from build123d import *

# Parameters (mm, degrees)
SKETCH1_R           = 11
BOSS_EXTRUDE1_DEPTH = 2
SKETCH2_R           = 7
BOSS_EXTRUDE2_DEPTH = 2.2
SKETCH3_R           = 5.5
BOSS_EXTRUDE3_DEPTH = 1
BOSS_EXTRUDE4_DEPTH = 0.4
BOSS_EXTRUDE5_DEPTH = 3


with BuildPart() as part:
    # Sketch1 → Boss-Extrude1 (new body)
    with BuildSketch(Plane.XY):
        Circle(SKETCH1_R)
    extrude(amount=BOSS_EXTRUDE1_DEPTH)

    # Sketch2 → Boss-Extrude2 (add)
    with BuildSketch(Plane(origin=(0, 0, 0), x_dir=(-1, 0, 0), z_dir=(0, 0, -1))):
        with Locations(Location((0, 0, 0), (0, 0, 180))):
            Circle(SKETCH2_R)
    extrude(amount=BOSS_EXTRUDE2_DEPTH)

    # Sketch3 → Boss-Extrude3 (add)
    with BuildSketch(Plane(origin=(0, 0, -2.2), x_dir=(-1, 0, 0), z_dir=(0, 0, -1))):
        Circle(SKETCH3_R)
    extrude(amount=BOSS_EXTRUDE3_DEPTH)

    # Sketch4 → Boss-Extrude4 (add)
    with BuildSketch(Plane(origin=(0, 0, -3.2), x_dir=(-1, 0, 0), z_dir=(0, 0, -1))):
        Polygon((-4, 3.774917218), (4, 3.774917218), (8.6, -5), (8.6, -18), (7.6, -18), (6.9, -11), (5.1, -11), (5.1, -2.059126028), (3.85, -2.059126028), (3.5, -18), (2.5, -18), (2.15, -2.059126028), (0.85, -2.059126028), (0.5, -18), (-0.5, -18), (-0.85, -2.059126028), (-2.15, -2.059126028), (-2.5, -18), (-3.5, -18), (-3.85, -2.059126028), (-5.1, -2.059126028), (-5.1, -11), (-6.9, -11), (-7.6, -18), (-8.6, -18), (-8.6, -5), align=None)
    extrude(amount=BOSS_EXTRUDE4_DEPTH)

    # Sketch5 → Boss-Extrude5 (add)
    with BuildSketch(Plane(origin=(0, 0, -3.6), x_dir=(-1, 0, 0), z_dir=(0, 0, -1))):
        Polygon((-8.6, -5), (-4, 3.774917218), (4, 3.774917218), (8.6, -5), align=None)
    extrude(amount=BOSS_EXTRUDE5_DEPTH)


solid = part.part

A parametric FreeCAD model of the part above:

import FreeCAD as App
import Part
import Sketcher
from FreeCAD import Vector

doc = App.newDocument("Part")
body = doc.addObject("PartDesign::Body", "Body")

sketch1 = doc.addObject("Sketcher::SketchObject", "Sketch")
body.addObject(sketch1)
sketch1.AttachmentSupport = (doc.XY_Plane, [""])
sketch1.MapMode = "FlatFace"
sketch1.addGeometry(Part.Circle(Vector(0, 0, 0), Vector(0, 0, 1), 11), False)
sketch1.addConstraint([
    Sketcher.Constraint("Coincident", 0, 3, -1, 1),
    Sketcher.Constraint("Diameter", 0, 22.0),
])
pad1 = doc.addObject("PartDesign::Pad", "Pad")
body.addObject(pad1)
pad1.Profile = sketch1
pad1.Length = 2

sketch2 = doc.addObject("Sketcher::SketchObject", "Sketch001")
body.addObject(sketch2)
sketch2.AttachmentSupport = (doc.XY_Plane, [""])
sketch2.MapMode = "FlatFace"
sketch2.addGeometry(Part.Circle(Vector(0, 0, 0), Vector(0, 0, 1), 7), False)
sketch2.addConstraint([
    Sketcher.Constraint("Coincident", 0, 3, -1, 1),
    Sketcher.Constraint("Diameter", 0, 14.0),
])
pad2 = doc.addObject("PartDesign::Pad", "Pad001")
body.addObject(pad2)
pad2.Profile = sketch2
pad2.Length = 2.2
pad2.Reversed = True

sketch3 = doc.addObject("Sketcher::SketchObject", "Sketch002")
body.addObject(sketch3)
sketch3.AttachmentSupport = (doc.XY_Plane, [""])
sketch3.MapMode = "FlatFace"
sketch3.AttachmentOffset = App.Placement(Vector(0, 0, -2.2), App.Rotation())
sketch3.addGeometry(Part.Circle(Vector(0, 0, 0), Vector(0, 0, 1), 5.5), False)
sketch3.addConstraint([
    Sketcher.Constraint("Coincident", 0, 3, -1, 1),
    Sketcher.Constraint("Diameter", 0, 11.0),
])
pad3 = doc.addObject("PartDesign::Pad", "Pad002")
body.addObject(pad3)
pad3.Profile = sketch3
pad3.Length = 1
pad3.Reversed = True

sketch4 = doc.addObject("Sketcher::SketchObject", "Sketch003")
body.addObject(sketch4)
sketch4.AttachmentSupport = (doc.XY_Plane, [""])
sketch4.MapMode = "FlatFace"
sketch4.AttachmentOffset = App.Placement(Vector(0, 0, -3.2), App.Rotation())
sketch4.addGeometry([
    Part.LineSegment(Vector(-4, 3.774917, 0), Vector(4, 3.774917, 0)),
    Part.LineSegment(Vector(4, 3.774917, 0), Vector(8.6, -5, 0)),
    Part.LineSegment(Vector(8.6, -5, 0), Vector(8.6, -18, 0)),
    Part.LineSegment(Vector(8.6, -18, 0), Vector(7.6, -18, 0)),
    Part.LineSegment(Vector(7.6, -18, 0), Vector(6.9, -11, 0)),
    Part.LineSegment(Vector(6.9, -11, 0), Vector(5.1, -11, 0)),
    Part.LineSegment(Vector(5.1, -11, 0), Vector(5.1, -2.059126, 0)),
    Part.LineSegment(Vector(5.1, -2.059126, 0), Vector(3.85, -2.059126, 0)),
    Part.LineSegment(Vector(3.85, -2.059126, 0), Vector(3.5, -18, 0)),
    Part.LineSegment(Vector(3.5, -18, 0), Vector(2.5, -18, 0)),
    Part.LineSegment(Vector(2.5, -18, 0), Vector(2.15, -2.059126, 0)),
    Part.LineSegment(Vector(2.15, -2.059126, 0), Vector(0.85, -2.059126, 0)),
    Part.LineSegment(Vector(0.85, -2.059126, 0), Vector(0.5, -18, 0)),
    Part.LineSegment(Vector(0.5, -18, 0), Vector(-0.5, -18, 0)),
    Part.LineSegment(Vector(-0.5, -18, 0), Vector(-0.85, -2.059126, 0)),
    Part.LineSegment(Vector(-0.85, -2.059126, 0), Vector(-2.15, -2.059126, 0)),
    Part.LineSegment(Vector(-2.15, -2.059126, 0), Vector(-2.5, -18, 0)),
    Part.LineSegment(Vector(-2.5, -18, 0), Vector(-3.5, -18, 0)),
    Part.LineSegment(Vector(-3.5, -18, 0), Vector(-3.85, -2.059126, 0)),
    Part.LineSegment(Vector(-3.85, -2.059126, 0), Vector(-5.1, -2.059126, 0)),
    Part.LineSegment(Vector(-5.1, -2.059126, 0), Vector(-5.1, -11, 0)),
    Part.LineSegment(Vector(-5.1, -11, 0), Vector(-6.9, -11, 0)),
    Part.LineSegment(Vector(-6.9, -11, 0), Vector(-7.6, -18, 0)),
    Part.LineSegment(Vector(-7.6, -18, 0), Vector(-8.6, -18, 0)),
    Part.LineSegment(Vector(-8.6, -18, 0), Vector(-8.6, -5, 0)),
    Part.LineSegment(Vector(-8.6, -5, 0), Vector(-4, 3.774917, 0)),
], False)
sketch4.addConstraint([
    Sketcher.Constraint("Coincident", 0, 2, 1, 1),
    Sketcher.Constraint("Coincident", 1, 2, 2, 1),
    Sketcher.Constraint("Coincident", 2, 2, 3, 1),
    Sketcher.Constraint("Coincident", 3, 2, 4, 1),
    Sketcher.Constraint("Coincident", 4, 2, 5, 1),
    Sketcher.Constraint("Coincident", 5, 2, 6, 1),
    Sketcher.Constraint("Coincident", 6, 2, 7, 1),
    Sketcher.Constraint("Coincident", 7, 2, 8, 1),
    Sketcher.Constraint("Coincident", 8, 2, 9, 1),
    Sketcher.Constraint("Coincident", 9, 2, 10, 1),
    Sketcher.Constraint("Coincident", 10, 2, 11, 1),
    Sketcher.Constraint("Coincident", 11, 2, 12, 1),
    Sketcher.Constraint("Coincident", 12, 2, 13, 1),
    Sketcher.Constraint("Coincident", 13, 2, 14, 1),
    Sketcher.Constraint("Coincident", 14, 2, 15, 1),
    Sketcher.Constraint("Coincident", 15, 2, 16, 1),
    Sketcher.Constraint("Coincident", 16, 2, 17, 1),
    Sketcher.Constraint("Coincident", 17, 2, 18, 1),
    Sketcher.Constraint("Coincident", 18, 2, 19, 1),
    Sketcher.Constraint("Coincident", 19, 2, 20, 1),
    Sketcher.Constraint("Coincident", 20, 2, 21, 1),
    Sketcher.Constraint("Coincident", 21, 2, 22, 1),
    Sketcher.Constraint("Coincident", 22, 2, 23, 1),
    Sketcher.Constraint("Coincident", 23, 2, 24, 1),
    Sketcher.Constraint("Coincident", 24, 2, 25, 1),
    Sketcher.Constraint("Coincident", 25, 2, 0, 1),
    Sketcher.Constraint("Horizontal", 0),
    Sketcher.Constraint("Vertical", 2),
    Sketcher.Constraint("Horizontal", 3),
    Sketcher.Constraint("Horizontal", 5),
    Sketcher.Constraint("Vertical", 6),
    Sketcher.Constraint("Horizontal", 7),
    Sketcher.Constraint("Horizontal", 9),
    Sketcher.Constraint("Horizontal", 11),
    Sketcher.Constraint("Horizontal", 13),
    Sketcher.Constraint("Horizontal", 15),
    Sketcher.Constraint("Horizontal", 17),
    Sketcher.Constraint("Horizontal", 19),
    Sketcher.Constraint("Vertical", 20),
    Sketcher.Constraint("Horizontal", 21),
    Sketcher.Constraint("Horizontal", 23),
    Sketcher.Constraint("Vertical", 24),
    Sketcher.Constraint("Symmetric", 11, 2, 14, 2, -2),
    Sketcher.Constraint("Symmetric", 9, 2, 16, 2, -2),
    Sketcher.Constraint("Symmetric", 7, 2, 18, 2, -2),
    Sketcher.Constraint("Symmetric", 5, 2, 20, 2, -2),
    Sketcher.Constraint("Symmetric", 3, 2, 22, 2, -2),
    Sketcher.Constraint("Symmetric", 1, 2, 24, 2, -2),
    Sketcher.Constraint("Parallel", 8, 12),
    Sketcher.Constraint("Parallel", 10, 14),
    Sketcher.Constraint("Parallel", 12, 16),
    Sketcher.Constraint("Parallel", 14, 18),
    Sketcher.Constraint("Horizontal", 3, 2, 8, 2),
    Sketcher.Constraint("Horizontal", 7, 2, 10, 2),
    Sketcher.Constraint("Horizontal", 9, 2, 12, 2),
    Sketcher.Constraint("Equal", 3, 9),
    Sketcher.Constraint("Equal", 9, 13),
    Sketcher.Constraint("Equal", 11, 15),
    Sketcher.Constraint("Equal", 5, 21),
    Sketcher.Constraint("Equal", 1, 25),
    Sketcher.Constraint("DistanceX", 0, 1, 0, 2, 8.0),
    Sketcher.Constraint("DistanceX", 3, 2, 3, 1, 1.0),
    Sketcher.Constraint("DistanceY", 2, 2, 2, 1, 13.0),
    Sketcher.Constraint("DistanceX", 5, 2, 5, 1, 1.8),
    Sketcher.Constraint("DistanceX", 11, 2, 11, 1, 1.3),
    Sketcher.Constraint("DistanceY", 1, 2, -1, 1, 5.0),
    Sketcher.Constraint("DistanceY", 4, 2, -1, 1, 11.0),
    Sketcher.Constraint("DistanceX", 11, 2, 7, 2, 3.0),
    Sketcher.Constraint("DistanceX", 7, 2, 7, 1, 1.25),
    Sketcher.Constraint("DistanceX", -1, 1, 1, 2, 8.6),
    Sketcher.Constraint("Distance", 1, 9.907531),
    Sketcher.Constraint("DistanceY", 6, 1, 6, 2, 8.940874),
])
pad4 = doc.addObject("PartDesign::Pad", "Pad003")
body.addObject(pad4)
pad4.Profile = sketch4
pad4.Length = 0.4
pad4.Reversed = True

sketch5 = doc.addObject("Sketcher::SketchObject", "Sketch004")
body.addObject(sketch5)
sketch5.AttachmentSupport = (doc.XY_Plane, [""])
sketch5.MapMode = "FlatFace"
sketch5.AttachmentOffset = App.Placement(Vector(0, 0, -3.6), App.Rotation())
sketch5.addGeometry([
    Part.LineSegment(Vector(4, 3.774917, 0), Vector(8.6, -5, 0)),
    Part.LineSegment(Vector(8.6, -5, 0), Vector(-8.6, -5, 0)),
    Part.LineSegment(Vector(-8.6, -5, 0), Vector(-4, 3.774917, 0)),
    Part.LineSegment(Vector(-4, 3.774917, 0), Vector(4, 3.774917, 0)),
], False)
sketch5.addConstraint([
    Sketcher.Constraint("Coincident", 0, 2, 1, 1),
    Sketcher.Constraint("Coincident", 1, 2, 2, 1),
    Sketcher.Constraint("Coincident", 2, 2, 3, 1),
    Sketcher.Constraint("Coincident", 3, 2, 0, 1),
    Sketcher.Constraint("Horizontal", 1),
    Sketcher.Constraint("Horizontal", 3),
    Sketcher.Constraint("Equal", 0, 2),
    Sketcher.Constraint("DistanceX", 3, 1, 3, 2, 8.0),
    Sketcher.Constraint("DistanceX", 1, 2, 1, 1, 17.2),
    Sketcher.Constraint("DistanceY", 0, 2, -1, 1, 5.0),
    Sketcher.Constraint("DistanceX", 2, 2, -1, 1, 4.0),
    Sketcher.Constraint("Distance", 0, 9.907531),
])
pad5 = doc.addObject("PartDesign::Pad", "Pad004")
body.addObject(pad5)
pad5.Profile = sketch5
pad5.Length = 3
pad5.Reversed = True

doc.recompute()
